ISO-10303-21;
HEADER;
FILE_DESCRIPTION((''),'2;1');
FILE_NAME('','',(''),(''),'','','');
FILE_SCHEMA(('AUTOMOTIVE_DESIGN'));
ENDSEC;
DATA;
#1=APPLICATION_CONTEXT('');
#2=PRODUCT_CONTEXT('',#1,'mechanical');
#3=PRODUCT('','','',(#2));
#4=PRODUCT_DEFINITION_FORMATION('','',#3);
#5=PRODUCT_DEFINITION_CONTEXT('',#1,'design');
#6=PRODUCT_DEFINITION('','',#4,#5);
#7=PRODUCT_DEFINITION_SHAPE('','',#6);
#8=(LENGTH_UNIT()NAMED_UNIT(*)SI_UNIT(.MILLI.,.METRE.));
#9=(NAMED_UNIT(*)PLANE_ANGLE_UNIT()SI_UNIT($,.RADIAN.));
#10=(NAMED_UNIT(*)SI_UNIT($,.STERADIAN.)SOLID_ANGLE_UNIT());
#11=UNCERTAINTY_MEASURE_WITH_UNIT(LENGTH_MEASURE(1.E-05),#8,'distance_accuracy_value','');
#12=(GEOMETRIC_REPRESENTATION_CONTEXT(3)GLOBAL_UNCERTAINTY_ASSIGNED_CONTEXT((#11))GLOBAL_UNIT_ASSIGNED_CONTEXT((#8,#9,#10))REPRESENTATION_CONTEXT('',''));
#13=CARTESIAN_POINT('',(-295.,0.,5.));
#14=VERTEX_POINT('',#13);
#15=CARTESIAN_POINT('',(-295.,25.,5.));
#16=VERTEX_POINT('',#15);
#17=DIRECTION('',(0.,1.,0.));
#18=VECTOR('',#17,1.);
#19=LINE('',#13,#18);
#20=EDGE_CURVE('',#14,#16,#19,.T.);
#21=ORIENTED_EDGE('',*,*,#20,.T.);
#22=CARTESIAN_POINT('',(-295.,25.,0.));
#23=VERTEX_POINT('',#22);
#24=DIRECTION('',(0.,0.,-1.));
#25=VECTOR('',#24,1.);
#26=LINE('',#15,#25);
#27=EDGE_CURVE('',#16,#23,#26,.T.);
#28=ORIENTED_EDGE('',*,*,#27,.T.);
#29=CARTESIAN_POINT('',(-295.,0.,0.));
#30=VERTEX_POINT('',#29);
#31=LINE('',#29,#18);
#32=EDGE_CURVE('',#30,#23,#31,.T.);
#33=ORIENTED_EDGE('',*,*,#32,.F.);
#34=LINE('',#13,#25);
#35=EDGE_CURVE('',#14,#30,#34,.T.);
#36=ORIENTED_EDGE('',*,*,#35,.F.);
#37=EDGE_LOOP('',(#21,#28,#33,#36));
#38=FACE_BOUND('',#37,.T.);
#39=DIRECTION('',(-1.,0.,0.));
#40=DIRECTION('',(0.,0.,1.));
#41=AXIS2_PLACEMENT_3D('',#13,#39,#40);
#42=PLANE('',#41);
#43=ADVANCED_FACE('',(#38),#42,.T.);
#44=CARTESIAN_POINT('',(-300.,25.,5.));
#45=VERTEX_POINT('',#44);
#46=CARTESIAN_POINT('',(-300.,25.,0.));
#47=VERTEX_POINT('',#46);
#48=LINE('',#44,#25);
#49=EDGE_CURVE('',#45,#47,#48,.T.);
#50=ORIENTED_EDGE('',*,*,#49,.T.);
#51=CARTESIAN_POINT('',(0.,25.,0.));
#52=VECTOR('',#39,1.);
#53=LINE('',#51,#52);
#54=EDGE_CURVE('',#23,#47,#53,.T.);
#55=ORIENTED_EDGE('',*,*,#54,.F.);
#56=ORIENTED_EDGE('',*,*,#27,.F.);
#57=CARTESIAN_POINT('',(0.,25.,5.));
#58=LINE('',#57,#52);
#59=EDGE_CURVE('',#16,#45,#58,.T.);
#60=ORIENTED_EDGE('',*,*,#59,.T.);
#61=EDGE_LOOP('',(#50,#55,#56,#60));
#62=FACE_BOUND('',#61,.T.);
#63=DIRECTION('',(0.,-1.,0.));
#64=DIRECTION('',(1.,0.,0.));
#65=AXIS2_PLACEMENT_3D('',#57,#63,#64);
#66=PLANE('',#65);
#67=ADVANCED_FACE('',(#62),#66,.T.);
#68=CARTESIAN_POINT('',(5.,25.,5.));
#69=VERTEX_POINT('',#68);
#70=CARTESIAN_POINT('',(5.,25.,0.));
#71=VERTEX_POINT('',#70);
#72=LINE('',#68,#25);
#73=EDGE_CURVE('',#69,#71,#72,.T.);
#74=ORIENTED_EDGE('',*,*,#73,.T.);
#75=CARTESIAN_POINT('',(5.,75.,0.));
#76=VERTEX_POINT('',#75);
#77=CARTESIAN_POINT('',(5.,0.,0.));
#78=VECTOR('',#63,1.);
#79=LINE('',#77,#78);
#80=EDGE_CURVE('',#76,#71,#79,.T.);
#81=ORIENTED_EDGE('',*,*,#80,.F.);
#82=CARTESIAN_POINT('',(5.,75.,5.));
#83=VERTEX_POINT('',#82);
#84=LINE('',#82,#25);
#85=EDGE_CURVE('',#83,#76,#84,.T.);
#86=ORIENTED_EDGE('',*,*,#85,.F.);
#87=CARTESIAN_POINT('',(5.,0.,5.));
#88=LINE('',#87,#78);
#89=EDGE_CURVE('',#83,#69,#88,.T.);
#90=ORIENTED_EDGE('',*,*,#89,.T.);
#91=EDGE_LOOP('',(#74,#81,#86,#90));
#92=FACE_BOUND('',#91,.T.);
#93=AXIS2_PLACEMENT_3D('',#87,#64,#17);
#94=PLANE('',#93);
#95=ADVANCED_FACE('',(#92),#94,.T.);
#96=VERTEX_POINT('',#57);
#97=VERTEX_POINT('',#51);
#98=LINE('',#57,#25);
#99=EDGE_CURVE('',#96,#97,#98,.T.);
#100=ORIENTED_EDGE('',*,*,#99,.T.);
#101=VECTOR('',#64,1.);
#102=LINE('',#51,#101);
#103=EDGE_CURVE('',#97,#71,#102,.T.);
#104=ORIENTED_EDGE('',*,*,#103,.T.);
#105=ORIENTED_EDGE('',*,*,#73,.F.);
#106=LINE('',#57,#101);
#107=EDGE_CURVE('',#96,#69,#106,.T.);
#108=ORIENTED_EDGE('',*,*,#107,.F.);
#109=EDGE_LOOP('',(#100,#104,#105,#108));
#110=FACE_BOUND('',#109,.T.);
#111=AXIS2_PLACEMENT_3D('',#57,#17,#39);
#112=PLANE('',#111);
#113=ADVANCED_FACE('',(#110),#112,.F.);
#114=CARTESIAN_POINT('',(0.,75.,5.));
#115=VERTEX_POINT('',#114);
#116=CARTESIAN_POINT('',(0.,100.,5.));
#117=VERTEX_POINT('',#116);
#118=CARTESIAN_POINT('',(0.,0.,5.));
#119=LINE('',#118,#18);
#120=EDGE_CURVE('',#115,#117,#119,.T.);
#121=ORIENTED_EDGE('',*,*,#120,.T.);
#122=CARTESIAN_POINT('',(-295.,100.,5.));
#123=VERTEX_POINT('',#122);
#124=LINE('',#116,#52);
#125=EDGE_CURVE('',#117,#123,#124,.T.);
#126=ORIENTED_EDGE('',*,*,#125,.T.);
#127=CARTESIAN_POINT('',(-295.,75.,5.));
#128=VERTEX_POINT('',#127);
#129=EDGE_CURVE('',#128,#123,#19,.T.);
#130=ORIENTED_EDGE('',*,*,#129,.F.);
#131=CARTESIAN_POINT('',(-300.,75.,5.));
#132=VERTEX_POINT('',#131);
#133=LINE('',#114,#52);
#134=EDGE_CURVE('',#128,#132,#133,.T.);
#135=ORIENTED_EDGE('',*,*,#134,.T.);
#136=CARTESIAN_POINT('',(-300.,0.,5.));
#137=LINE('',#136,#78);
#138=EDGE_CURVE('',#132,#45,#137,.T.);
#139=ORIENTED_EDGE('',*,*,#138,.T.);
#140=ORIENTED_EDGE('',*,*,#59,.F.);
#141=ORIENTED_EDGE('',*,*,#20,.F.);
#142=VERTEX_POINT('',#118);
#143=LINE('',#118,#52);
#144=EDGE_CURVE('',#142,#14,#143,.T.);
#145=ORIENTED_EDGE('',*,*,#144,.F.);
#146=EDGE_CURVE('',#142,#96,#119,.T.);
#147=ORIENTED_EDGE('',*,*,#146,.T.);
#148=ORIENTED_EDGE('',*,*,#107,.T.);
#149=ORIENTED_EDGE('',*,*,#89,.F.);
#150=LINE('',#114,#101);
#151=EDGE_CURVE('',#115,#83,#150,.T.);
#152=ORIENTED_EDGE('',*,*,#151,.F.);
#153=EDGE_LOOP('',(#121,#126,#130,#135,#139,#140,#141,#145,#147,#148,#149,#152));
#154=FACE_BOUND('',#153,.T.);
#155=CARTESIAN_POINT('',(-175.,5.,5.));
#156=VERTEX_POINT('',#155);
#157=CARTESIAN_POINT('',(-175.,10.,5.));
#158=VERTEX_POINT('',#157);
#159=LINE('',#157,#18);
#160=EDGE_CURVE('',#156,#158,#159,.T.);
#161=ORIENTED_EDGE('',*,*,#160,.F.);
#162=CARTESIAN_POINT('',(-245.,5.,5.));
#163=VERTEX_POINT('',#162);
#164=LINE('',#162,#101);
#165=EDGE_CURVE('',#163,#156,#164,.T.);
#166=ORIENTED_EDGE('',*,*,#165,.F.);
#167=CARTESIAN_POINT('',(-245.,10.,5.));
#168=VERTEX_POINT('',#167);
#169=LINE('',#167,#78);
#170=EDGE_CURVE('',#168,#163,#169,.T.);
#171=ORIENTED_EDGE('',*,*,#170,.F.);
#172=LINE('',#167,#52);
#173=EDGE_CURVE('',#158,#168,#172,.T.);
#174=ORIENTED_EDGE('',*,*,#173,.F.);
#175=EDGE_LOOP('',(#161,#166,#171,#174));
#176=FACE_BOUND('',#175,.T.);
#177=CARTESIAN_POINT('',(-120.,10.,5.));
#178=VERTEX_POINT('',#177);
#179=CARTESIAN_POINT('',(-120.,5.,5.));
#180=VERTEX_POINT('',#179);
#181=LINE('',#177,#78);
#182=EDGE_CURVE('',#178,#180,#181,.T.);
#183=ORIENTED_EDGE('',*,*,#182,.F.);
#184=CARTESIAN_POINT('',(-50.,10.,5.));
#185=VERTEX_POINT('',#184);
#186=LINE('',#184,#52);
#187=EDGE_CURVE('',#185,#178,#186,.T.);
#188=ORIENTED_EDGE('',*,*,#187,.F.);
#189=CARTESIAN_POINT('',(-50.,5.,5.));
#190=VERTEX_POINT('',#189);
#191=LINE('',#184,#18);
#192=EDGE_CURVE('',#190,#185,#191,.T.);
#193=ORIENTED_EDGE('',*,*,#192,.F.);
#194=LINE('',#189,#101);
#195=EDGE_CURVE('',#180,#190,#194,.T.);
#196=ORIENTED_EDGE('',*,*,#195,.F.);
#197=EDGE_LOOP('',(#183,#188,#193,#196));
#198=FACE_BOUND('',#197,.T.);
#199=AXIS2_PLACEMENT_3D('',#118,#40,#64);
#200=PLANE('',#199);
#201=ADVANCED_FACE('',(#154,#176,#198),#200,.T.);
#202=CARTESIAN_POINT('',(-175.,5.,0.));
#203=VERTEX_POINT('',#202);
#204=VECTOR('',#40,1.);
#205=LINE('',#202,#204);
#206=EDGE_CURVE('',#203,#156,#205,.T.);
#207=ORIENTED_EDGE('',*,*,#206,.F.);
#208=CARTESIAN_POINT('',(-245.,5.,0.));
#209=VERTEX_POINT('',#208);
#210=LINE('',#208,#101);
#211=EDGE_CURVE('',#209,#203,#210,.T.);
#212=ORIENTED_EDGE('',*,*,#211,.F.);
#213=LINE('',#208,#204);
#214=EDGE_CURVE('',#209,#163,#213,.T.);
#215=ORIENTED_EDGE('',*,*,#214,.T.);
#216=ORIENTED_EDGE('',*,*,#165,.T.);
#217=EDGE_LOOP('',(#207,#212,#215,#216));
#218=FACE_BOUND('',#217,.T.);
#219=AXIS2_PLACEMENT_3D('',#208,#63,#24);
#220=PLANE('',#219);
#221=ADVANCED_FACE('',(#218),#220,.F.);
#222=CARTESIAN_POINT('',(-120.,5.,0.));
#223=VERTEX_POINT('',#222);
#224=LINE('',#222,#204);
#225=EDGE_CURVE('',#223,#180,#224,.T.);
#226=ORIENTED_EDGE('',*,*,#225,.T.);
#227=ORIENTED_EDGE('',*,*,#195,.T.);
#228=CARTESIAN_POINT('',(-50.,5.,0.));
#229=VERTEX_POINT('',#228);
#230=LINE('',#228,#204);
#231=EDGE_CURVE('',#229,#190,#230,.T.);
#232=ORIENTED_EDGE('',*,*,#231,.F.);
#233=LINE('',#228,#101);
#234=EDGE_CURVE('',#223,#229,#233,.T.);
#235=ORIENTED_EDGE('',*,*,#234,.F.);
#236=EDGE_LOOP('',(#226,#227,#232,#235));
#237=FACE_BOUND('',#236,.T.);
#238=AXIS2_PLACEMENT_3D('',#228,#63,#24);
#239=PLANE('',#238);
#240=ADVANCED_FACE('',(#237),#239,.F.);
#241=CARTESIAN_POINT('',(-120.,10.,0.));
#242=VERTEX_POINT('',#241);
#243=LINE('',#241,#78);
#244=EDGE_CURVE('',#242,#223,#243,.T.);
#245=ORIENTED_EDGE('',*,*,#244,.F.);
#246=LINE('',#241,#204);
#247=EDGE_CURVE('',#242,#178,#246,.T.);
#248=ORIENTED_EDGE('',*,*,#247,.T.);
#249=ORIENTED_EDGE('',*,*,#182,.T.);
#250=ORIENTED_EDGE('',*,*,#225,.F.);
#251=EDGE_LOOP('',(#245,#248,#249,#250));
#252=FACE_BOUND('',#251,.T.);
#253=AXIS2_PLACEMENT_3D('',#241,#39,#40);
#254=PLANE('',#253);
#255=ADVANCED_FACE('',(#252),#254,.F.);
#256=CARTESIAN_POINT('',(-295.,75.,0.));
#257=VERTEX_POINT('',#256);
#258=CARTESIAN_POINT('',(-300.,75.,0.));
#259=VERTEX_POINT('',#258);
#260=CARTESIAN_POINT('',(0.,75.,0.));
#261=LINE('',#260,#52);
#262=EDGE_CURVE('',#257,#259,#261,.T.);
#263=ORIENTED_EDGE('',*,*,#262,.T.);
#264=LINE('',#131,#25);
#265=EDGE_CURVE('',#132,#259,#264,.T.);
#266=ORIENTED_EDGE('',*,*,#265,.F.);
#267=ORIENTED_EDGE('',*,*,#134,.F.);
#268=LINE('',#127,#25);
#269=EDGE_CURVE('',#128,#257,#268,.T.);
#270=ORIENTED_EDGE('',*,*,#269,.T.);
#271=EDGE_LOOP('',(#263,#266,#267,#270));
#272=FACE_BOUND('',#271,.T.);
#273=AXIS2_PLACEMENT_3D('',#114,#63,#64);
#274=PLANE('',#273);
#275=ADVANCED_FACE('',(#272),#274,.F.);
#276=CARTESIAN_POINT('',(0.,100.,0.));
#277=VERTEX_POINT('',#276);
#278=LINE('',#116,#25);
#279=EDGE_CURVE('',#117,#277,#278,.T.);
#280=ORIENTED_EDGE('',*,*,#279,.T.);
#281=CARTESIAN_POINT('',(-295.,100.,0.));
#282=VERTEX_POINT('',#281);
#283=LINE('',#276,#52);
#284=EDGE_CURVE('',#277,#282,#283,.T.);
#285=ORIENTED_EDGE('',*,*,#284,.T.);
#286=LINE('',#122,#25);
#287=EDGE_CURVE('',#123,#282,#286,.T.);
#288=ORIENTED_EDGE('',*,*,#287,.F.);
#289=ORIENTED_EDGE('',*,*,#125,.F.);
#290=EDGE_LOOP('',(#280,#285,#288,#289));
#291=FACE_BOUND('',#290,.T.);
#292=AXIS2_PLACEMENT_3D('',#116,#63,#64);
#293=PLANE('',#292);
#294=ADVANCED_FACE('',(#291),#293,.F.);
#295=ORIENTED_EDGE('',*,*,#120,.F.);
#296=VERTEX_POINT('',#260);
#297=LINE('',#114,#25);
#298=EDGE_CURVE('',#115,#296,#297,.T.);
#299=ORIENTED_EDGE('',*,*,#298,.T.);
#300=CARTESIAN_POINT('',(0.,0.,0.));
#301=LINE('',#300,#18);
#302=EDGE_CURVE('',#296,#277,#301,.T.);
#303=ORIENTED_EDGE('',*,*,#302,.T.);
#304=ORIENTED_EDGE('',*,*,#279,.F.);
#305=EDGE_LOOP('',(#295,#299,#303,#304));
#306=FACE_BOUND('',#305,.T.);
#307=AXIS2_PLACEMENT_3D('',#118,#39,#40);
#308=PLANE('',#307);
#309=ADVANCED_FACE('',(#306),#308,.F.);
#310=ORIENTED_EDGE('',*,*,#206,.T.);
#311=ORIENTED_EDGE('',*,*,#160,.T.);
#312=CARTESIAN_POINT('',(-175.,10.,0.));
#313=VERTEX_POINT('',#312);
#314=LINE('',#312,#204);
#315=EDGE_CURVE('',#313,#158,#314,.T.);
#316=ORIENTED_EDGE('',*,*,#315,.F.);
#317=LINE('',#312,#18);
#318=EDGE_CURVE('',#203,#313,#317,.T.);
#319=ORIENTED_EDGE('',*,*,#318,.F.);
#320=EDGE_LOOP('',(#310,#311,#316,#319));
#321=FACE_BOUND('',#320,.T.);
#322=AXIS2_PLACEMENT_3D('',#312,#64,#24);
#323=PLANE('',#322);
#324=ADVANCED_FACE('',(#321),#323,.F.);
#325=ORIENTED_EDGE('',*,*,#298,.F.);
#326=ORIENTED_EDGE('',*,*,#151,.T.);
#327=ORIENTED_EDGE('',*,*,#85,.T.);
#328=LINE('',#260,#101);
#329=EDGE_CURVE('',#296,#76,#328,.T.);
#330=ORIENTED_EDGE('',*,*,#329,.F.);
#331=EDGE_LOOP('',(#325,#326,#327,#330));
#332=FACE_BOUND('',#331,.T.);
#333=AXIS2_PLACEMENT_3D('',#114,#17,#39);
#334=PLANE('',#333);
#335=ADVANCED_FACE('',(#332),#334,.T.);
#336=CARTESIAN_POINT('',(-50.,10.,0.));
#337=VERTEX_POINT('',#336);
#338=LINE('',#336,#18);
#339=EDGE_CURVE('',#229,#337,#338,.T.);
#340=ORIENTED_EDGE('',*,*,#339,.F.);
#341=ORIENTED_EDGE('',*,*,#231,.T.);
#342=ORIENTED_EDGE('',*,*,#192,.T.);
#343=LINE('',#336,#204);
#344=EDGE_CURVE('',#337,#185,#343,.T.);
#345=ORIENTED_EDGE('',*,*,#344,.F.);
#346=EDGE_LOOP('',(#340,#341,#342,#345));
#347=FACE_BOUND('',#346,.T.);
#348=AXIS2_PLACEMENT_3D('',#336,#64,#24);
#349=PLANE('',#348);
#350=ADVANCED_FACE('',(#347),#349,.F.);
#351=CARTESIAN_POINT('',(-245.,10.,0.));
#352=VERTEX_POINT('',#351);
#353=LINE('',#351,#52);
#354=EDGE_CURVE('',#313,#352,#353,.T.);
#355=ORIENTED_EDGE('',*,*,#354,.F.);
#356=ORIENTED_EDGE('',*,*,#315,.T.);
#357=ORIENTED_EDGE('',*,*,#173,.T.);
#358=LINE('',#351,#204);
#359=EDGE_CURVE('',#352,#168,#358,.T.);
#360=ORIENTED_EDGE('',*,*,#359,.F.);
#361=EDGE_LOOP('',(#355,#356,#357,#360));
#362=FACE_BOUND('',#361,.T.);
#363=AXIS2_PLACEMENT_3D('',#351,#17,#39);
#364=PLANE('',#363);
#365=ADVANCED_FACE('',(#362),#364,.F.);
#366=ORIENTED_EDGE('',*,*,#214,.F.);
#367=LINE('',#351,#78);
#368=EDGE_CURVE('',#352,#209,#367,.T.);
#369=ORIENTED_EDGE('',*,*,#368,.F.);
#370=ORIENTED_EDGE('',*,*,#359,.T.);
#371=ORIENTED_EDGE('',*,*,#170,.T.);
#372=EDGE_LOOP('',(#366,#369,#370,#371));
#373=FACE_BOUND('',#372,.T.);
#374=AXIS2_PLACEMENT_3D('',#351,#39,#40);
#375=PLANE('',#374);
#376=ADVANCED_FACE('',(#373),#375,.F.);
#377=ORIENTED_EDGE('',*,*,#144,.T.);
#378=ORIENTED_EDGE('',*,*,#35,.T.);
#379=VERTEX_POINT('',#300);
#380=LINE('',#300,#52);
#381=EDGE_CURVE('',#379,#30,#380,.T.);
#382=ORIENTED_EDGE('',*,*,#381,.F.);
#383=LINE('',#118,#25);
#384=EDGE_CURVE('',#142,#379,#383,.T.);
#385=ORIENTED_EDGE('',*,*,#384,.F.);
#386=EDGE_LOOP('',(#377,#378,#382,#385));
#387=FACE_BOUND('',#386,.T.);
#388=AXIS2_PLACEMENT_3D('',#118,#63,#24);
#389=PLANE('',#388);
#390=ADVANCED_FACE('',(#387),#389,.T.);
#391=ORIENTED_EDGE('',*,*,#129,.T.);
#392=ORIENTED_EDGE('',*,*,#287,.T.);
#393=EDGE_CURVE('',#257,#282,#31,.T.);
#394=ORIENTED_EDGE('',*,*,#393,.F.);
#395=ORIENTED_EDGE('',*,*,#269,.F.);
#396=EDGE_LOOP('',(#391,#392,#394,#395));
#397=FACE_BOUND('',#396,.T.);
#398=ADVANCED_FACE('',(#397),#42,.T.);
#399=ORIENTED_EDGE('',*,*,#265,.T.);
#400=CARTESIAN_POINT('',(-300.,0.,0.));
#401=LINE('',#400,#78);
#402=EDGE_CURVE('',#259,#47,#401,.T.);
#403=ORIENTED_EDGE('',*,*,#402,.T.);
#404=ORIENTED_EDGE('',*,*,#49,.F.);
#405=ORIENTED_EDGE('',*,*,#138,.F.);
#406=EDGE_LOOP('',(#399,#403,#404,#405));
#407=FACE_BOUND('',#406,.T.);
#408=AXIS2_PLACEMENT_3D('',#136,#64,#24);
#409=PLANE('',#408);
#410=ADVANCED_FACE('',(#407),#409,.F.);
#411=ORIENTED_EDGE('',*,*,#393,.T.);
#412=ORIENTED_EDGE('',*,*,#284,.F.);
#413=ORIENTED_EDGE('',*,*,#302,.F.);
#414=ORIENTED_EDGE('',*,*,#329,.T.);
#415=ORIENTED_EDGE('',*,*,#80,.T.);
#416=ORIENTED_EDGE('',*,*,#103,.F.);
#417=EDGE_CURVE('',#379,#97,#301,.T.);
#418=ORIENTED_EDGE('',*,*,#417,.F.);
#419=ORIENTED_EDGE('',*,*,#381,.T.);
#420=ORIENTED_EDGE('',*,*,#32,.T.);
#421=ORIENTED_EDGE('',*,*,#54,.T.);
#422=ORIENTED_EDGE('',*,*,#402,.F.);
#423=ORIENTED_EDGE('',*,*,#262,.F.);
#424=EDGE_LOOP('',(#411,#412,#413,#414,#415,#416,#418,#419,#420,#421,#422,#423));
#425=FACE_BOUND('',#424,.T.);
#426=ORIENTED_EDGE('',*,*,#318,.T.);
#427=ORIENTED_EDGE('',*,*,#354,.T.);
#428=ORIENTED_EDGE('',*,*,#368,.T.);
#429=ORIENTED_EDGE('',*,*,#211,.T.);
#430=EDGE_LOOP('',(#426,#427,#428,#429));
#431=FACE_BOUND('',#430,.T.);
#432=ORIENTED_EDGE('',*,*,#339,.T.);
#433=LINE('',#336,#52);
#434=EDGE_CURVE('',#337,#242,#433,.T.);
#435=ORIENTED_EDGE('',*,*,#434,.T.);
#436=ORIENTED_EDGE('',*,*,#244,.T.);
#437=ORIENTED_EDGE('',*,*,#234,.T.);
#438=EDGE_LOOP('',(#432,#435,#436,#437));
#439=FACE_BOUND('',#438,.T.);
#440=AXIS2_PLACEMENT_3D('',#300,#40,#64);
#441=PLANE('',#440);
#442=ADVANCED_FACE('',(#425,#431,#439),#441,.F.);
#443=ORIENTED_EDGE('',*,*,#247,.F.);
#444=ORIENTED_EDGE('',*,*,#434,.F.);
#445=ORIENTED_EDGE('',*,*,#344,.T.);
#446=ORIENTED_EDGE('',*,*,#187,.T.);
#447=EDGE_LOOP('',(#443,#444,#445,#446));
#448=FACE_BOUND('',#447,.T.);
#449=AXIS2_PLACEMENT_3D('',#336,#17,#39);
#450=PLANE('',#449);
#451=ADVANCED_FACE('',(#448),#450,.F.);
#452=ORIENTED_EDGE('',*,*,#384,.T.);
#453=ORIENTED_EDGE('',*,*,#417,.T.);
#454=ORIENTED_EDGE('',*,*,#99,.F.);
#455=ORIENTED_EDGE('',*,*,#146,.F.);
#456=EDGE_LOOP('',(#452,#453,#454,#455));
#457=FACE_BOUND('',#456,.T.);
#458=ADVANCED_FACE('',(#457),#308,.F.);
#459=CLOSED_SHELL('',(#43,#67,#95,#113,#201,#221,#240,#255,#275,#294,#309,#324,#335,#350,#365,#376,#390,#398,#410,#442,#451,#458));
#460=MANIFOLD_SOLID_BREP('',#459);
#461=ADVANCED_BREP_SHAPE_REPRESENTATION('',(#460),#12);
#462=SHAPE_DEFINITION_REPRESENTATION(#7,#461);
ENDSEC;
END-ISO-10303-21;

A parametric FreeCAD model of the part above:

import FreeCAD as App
import Part
import Sketcher


def add_polygon(sketch, points):
    """Adds a closed chain of lines whose ends are joined by coincident constraints."""
    first, n = sketch.GeometryCount, len(points)
    for a, b in zip(points, points[1:] + points[:1]):
        sketch.addGeometry(Part.LineSegment(App.Vector(*a, 0), App.Vector(*b, 0)), False)
    for i in range(n):
        sketch.addConstraint(Sketcher.Constraint("Coincident", first + i, 2, first + (i + 1) % n, 1))

doc = App.newDocument("Part")
body = doc.addObject("PartDesign::Body", "Body")

# Sketch on XY plane
sketch1 = body.newObject("Sketcher::SketchObject", "Sketch")
sketch1.AttachmentSupport = (doc.getObject("XY_Plane"), [""])
sketch1.MapMode = "FlatFace"
add_polygon(sketch1, [(-295, 25), (-295, 0), (0, 0), (0, 25), (5, 25), (5, 75), (0, 75), (0, 100), (-295, 100), (-295, 75), (-300, 75), (-300, 25)])  # lines 0-11
sketch1.addConstraint([
    Sketcher.Constraint("Vertical", 0),
    Sketcher.Constraint("Horizontal", 1),
    Sketcher.Constraint("Vertical", 2),
    Sketcher.Constraint("Horizontal", 3),
    Sketcher.Constraint("Vertical", 4),
    Sketcher.Constraint("Horizontal", 5),
    Sketcher.Constraint("Vertical", 6),
    Sketcher.Constraint("Horizontal", 7),
    Sketcher.Constraint("Vertical", 8),
    Sketcher.Constraint("Horizontal", 9),
    Sketcher.Constraint("Vertical", 10),
    Sketcher.Constraint("Horizontal", 11),
    Sketcher.Constraint("Coincident", 1, 2, -1, 1),
    Sketcher.Constraint("PointOnObject", 5, 2, -2),
    Sketcher.Constraint("Horizontal", 5, 2, 8, 2),
    Sketcher.Constraint("Horizontal", 3, 2, 10, 2),
    Sketcher.Constraint("Vertical", 0, 2, 7, 2),
    Sketcher.Constraint("Equal", 5, 9),
    Sketcher.Constraint("Equal", 2, 6),
    Sketcher.Constraint("DistanceX", 1, 1, 1, 2, 295.0),
    Sketcher.Constraint("DistanceX", 3, 1, 3, 2, 5.0),
    Sketcher.Constraint("DistanceY", 0, 2, 0, 1, 25.0),
    Sketcher.Constraint("DistanceY", 4, 1, 4, 2, 50.0),
])
pad1 = body.newObject("PartDesign::Pad", "Pad")
pad1.Profile = sketch1
pad1.Length = 5

# Sketch on XY plane
sketch2 = body.newObject("Sketcher::SketchObject", "Sketch001")
sketch2.AttachmentSupport = (doc.getObject("XY_Plane"), [""])
sketch2.MapMode = "FlatFace"
sketch2.AttachmentOffset = App.Placement(App.Vector(0, 0, 5), App.Rotation())
add_polygon(sketch2, [(-245, 10), (-245, 5), (-175, 5), (-175, 10)])  # lines 0-3
add_polygon(sketch2, [(-120, 10), (-120, 5), (-50, 5), (-50, 10)])  # lines 4-7
sketch2.addConstraint([
    Sketcher.Constraint("Vertical", 0),
    Sketcher.Constraint("Horizontal", 1),
    Sketcher.Constraint("Vertical", 2),
    Sketcher.Constraint("Horizontal", 3),
    Sketcher.Constraint("Vertical", 4),
    Sketcher.Constraint("Horizontal", 5),
    Sketcher.Constraint("Vertical", 6),
    Sketcher.Constraint("Horizontal", 7),
    Sketcher.Constraint("Horizontal", 1, 2, 4, 2),
    Sketcher.Constraint("Horizontal", 3, 2, 6, 2),
    Sketcher.Constraint("Equal", 3, 5),
    Sketcher.Constraint("DistanceX", 1, 1, 1, 2, 70.0),
    Sketcher.Constraint("DistanceY", 0, 2, 0, 1, 5.0),
    Sketcher.Constraint("DistanceX", 0, 2, -1, 1, 245.0),
    Sketcher.Constraint("DistanceY", -1, 1, 0, 2, 5.0),
    Sketcher.Constraint("DistanceX", 4, 2, -1, 1, 120.0),
])
pocket1 = body.newObject("PartDesign::Pocket", "Pocket")
pocket1.Profile = sketch2
pocket1.Length = 5

doc.recompute()
